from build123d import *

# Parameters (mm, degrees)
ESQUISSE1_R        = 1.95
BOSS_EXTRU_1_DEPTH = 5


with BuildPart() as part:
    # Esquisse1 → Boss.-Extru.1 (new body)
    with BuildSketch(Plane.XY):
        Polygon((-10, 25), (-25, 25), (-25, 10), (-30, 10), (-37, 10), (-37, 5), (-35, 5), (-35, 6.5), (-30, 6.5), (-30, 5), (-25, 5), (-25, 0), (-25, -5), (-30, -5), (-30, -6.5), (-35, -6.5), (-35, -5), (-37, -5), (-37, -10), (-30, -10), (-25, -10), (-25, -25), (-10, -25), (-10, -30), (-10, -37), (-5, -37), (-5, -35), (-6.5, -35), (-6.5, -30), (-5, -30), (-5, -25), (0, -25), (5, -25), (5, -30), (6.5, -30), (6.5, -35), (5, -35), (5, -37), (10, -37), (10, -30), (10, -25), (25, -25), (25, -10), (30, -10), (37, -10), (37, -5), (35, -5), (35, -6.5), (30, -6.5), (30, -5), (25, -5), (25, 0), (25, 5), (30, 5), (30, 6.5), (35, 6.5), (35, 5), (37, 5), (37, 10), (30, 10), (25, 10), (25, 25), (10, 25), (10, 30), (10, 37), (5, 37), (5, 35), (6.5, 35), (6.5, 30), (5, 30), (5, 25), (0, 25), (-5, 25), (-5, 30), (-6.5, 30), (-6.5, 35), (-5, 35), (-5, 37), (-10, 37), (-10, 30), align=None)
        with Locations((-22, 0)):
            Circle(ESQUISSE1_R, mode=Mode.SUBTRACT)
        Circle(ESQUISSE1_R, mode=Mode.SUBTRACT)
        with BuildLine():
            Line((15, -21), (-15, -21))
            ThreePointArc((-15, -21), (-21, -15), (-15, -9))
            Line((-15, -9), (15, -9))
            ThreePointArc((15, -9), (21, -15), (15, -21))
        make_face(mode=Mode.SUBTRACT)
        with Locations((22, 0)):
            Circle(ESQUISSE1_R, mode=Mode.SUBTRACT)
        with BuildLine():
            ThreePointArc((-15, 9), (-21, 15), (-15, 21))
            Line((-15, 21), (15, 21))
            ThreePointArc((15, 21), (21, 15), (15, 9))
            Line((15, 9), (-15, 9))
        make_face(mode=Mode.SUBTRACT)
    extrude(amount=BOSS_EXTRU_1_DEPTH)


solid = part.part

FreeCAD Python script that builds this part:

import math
import FreeCAD as App
import Part
import Sketcher
from FreeCAD import Vector

doc = App.newDocument("Part")
body = doc.addObject("PartDesign::Body", "Body")

# Sketch on XY plane
sketch1 = body.newObject("Sketcher::SketchObject", "Sketch")
sketch1.AttachmentSupport = (doc.getObject("XY_Plane"), [""])
sketch1.MapMode = "FlatFace"
sketch1.addGeometry([
    Part.LineSegment(Vector(-10, 25, 0), Vector(-25, 25, 0)),  # 0
    Part.LineSegment(Vector(-25, 25, 0), Vector(-25, 10, 0)),  # 1
    Part.LineSegment(Vector(-25, 10, 0), Vector(-37, 10, 0)),  # 2
    Part.LineSegment(Vector(-37, 10, 0), Vector(-37, 5, 0)),  # 3
    Part.LineSegment(Vector(-37, 5, 0), Vector(-35, 5, 0)),  # 4
    Part.LineSegment(Vector(-35, 5, 0), Vector(-35, 6.5, 0)),  # 5
    Part.LineSegment(Vector(-35, 6.5, 0), Vector(-30, 6.5, 0)),  # 6
    Part.LineSegment(Vector(-30, 6.5, 0), Vector(-30, 5, 0)),  # 7
    Part.LineSegment(Vector(-30, 5, 0), Vector(-25, 5, 0)),  # 8
    Part.LineSegment(Vector(-25, 5, 0), Vector(-25, -5, 0)),  # 9
    Part.LineSegment(Vector(-25, -5, 0), Vector(-30, -5, 0)),  # 10
    Part.LineSegment(Vector(-30, -5, 0), Vector(-30, -6.5, 0)),  # 11
    Part.LineSegment(Vector(-30, -6.5, 0), Vector(-35, -6.5, 0)),  # 12
    Part.LineSegment(Vector(-35, -6.5, 0), Vector(-35, -5, 0)),  # 13
    Part.LineSegment(Vector(-35, -5, 0), Vector(-37, -5, 0)),  # 14
    Part.LineSegment(Vector(-37, -5, 0), Vector(-37, -10, 0)),  # 15
    Part.LineSegment(Vector(-37, -10, 0), Vector(-25, -10, 0)),  # 16
    Part.LineSegment(Vector(-25, -10, 0), Vector(-25, -25, 0)),  # 17
    Part.LineSegment(Vector(-25, -25, 0), Vector(-10, -25, 0)),  # 18
    Part.LineSegment(Vector(-10, -25, 0), Vector(-10, -37, 0)),  # 19
    Part.LineSegment(Vector(-10, -37, 0), Vector(-5, -37, 0)),  # 20
    Part.LineSegment(Vector(-5, -37, 0), Vector(-5, -35, 0)),  # 21
    Part.LineSegment(Vector(-5, -35, 0), Vector(-6.5, -35, 0)),  # 22
    Part.LineSegment(Vector(-6.5, -35, 0), Vector(-6.5, -30, 0)),  # 23
    Part.LineSegment(Vector(-6.5, -30, 0), Vector(-5, -30, 0)),  # 24
    Part.LineSegment(Vector(-5, -30, 0), Vector(-5, -25, 0)),  # 25
    Part.LineSegment(Vector(-5, -25, 0), Vector(5, -25, 0)),  # 26
    Part.LineSegment(Vector(5, -25, 0), Vector(5, -30, 0)),  # 27
    Part.LineSegment(Vector(5, -30, 0), Vector(6.5, -30, 0)),  # 28
    Part.LineSegment(Vector(6.5, -30, 0), Vector(6.5, -35, 0)),  # 29
    Part.LineSegment(Vector(6.5, -35, 0), Vector(5, -35, 0)),  # 30
    Part.LineSegment(Vector(5, -35, 0), Vector(5, -37, 0)),  # 31
    Part.LineSegment(Vector(5, -37, 0), Vector(10, -37, 0)),  # 32
    Part.LineSegment(Vector(10, -37, 0), Vector(10, -25, 0)),  # 33
    Part.LineSegment(Vector(10, -25, 0), Vector(25, -25, 0)),  # 34
    Part.LineSegment(Vector(25, -25, 0), Vector(25, -10, 0)),  # 35
    Part.LineSegment(Vector(25, -10, 0), Vector(37, -10, 0)),  # 36
    Part.LineSegment(Vector(37, -10, 0), Vector(37, -5, 0)),  # 37
    Part.LineSegment(Vector(37, -5, 0), Vector(35, -5, 0)),  # 38
    Part.LineSegment(Vector(35, -5, 0), Vector(35, -6.5, 0)),  # 39
    Part.LineSegment(Vector(35, -6.5, 0), Vector(30, -6.5, 0)),  # 40
    Part.LineSegment(Vector(30, -6.5, 0), Vector(30, -5, 0)),  # 41
    Part.LineSegment(Vector(30, -5, 0), Vector(25, -5, 0)),  # 42
    Part.LineSegment(Vector(25, -5, 0), Vector(25, 5, 0)),  # 43
    Part.LineSegment(Vector(25, 5, 0), Vector(30, 5, 0)),  # 44
    Part.LineSegment(Vector(30, 5, 0), Vector(30, 6.5, 0)),  # 45
    Part.LineSegment(Vector(30, 6.5, 0), Vector(35, 6.5, 0)),  # 46
    Part.LineSegment(Vector(35, 6.5, 0), Vector(35, 5, 0)),  # 47
    Part.LineSegment(Vector(35, 5, 0), Vector(37, 5, 0)),  # 48
    Part.LineSegment(Vector(37, 5, 0), Vector(37, 10, 0)),  # 49
    Part.LineSegment(Vector(37, 10, 0), Vector(25, 10, 0)),  # 50
    Part.LineSegment(Vector(25, 10, 0), Vector(25, 25, 0)),  # 51
    Part.LineSegment(Vector(25, 25, 0), Vector(10, 25, 0)),  # 52
    Part.LineSegment(Vector(10, 25, 0), Vector(10, 37, 0)),  # 53
    Part.LineSegment(Vector(10, 37, 0), Vector(5, 37, 0)),  # 54
    Part.LineSegment(Vector(5, 37, 0), Vector(5, 35, 0)),  # 55
    Part.LineSegment(Vector(5, 35, 0), Vector(6.5, 35, 0)),  # 56
    Part.LineSegment(Vector(6.5, 35, 0), Vector(6.5, 30, 0)),  # 57
    Part.LineSegment(Vector(6.5, 30, 0), Vector(5, 30, 0)),  # 58
    Part.LineSegment(Vector(5, 30, 0), Vector(5, 25, 0)),  # 59
    Part.LineSegment(Vector(5, 25, 0), Vector(-5, 25, 0)),  # 60
    Part.LineSegment(Vector(-5, 25, 0), Vector(-5, 30, 0)),  # 61
    Part.LineSegment(Vector(-5, 30, 0), Vector(-6.5, 30, 0)),  # 62
    Part.LineSegment(Vector(-6.5, 30, 0), Vector(-6.5, 35, 0)),  # 63
    Part.LineSegment(Vector(-6.5, 35, 0), Vector(-5, 35, 0)),  # 64
    Part.LineSegment(Vector(-5, 35, 0), Vector(-5, 37, 0)),  # 65
    Part.LineSegment(Vector(-5, 37, 0), Vector(-10, 37, 0)),  # 66
    Part.LineSegment(Vector(-10, 37, 0), Vector(-10, 25, 0)),  # 67
    Part.ArcOfCircle(Part.Circle(Vector(15, -15, 0), Vector(0, 0, 1), 6), math.radians(-90), math.radians(90)),  # 68
    Part.LineSegment(Vector(15, -21, 0), Vector(-15, -21, 0)),  # 69
    Part.ArcOfCircle(Part.Circle(Vector(-15, -15, 0), Vector(0, 0, 1), 6), math.radians(90), math.radians(270)),  # 70
    Part.LineSegment(Vector(-15, -9, 0), Vector(15, -9, 0)),  # 71
    Part.Circle(Vector(-22, 0, 0), Vector(0, 0, 1), 1.9),  # 72
    Part.Circle(Vector(0, 0, 0), Vector(0, 0, 1), 1.9),  # 73
    Part.Circle(Vector(22, 0, 0), Vector(0, 0, 1), 1.9),  # 74
    Part.LineSegment(Vector(15, 9, 0), Vector(-15, 9, 0)),  # 75
    Part.ArcOfCircle(Part.Circle(Vector(-15, 15, 0), Vector(0, 0, 1), 6), math.radians(90), math.radians(270)),  # 76
    Part.LineSegment(Vector(-15, 21, 0), Vector(15, 21, 0)),  # 77
    Part.ArcOfCircle(Part.Circle(Vector(15, 15, 0), Vector(0, 0, 1), 6), math.radians(-90), math.radians(90)),  # 78
], False)
sketch1.addConstraint([
    Sketcher.Constraint("Coincident", 0, 2, 1, 1),
    Sketcher.Constraint("Coincident", 1, 2, 2, 1),
    Sketcher.Constraint("Coincident", 2, 2, 3, 1),
    Sketcher.Constraint("Coincident", 3, 2, 4, 1),
    Sketcher.Constraint("Coincident", 4, 2, 5, 1),
    Sketcher.Constraint("Coincident", 5, 2, 6, 1),
    Sketcher.Constraint("Coincident", 6, 2, 7, 1),
    Sketcher.Constraint("Coincident", 7, 2, 8, 1),
    Sketcher.Constraint("Coincident", 8, 2, 9, 1),
    Sketcher.Constraint("Coincident", 9, 2, 10, 1),
    Sketcher.Constraint("Coincident", 10, 2, 11, 1),
    Sketcher.Constraint("Coincident", 11, 2, 12, 1),
    Sketcher.Constraint("Coincident", 12, 2, 13, 1),
    Sketcher.Constraint("Coincident", 13, 2, 14, 1),
    Sketcher.Constraint("Coincident", 14, 2, 15, 1),
    Sketcher.Constraint("Coincident", 15, 2, 16, 1),
    Sketcher.Constraint("Coincident", 16, 2, 17, 1),
    Sketcher.Constraint("Coincident", 17, 2, 18, 1),
    Sketcher.Constraint("Coincident", 18, 2, 19, 1),
    Sketcher.Constraint("Coincident", 19, 2, 20, 1),
    Sketcher.Constraint("Coincident", 20, 2, 21, 1),
    Sketcher.Constraint("Coincident", 21, 2, 22, 1),
    Sketcher.Constraint("Coincident", 22, 2, 23, 1),
    Sketcher.Constraint("Coincident", 23, 2, 24, 1),
    Sketcher.Constraint("Coincident", 24, 2, 25, 1),
    Sketcher.Constraint("Coincident", 25, 2, 26, 1),
    Sketcher.Constraint("Coincident", 26, 2, 27, 1),
    Sketcher.Constraint("Coincident", 27, 2, 28, 1),
    Sketcher.Constraint("Coincident", 28, 2, 29, 1),
    Sketcher.Constraint("Coincident", 29, 2, 30, 1),
    Sketcher.Constraint("Coincident", 30, 2, 31, 1),
    Sketcher.Constraint("Coincident", 31, 2, 32, 1),
    Sketcher.Constraint("Coincident", 32, 2, 33, 1),
    Sketcher.Constraint("Coincident", 33, 2, 34, 1),
    Sketcher.Constraint("Coincident", 34, 2, 35, 1),
    Sketcher.Constraint("Coincident", 35, 2, 36, 1),
    Sketcher.Constraint("Coincident", 36, 2, 37, 1),
    Sketcher.Constraint("Coincident", 37, 2, 38, 1),
    Sketcher.Constraint("Coincident", 38, 2, 39, 1),
    Sketcher.Constraint("Coincident", 39, 2, 40, 1),
    Sketcher.Constraint("Coincident", 40, 2, 41, 1),
    Sketcher.Constraint("Coincident", 41, 2, 42, 1),
    Sketcher.Constraint("Coincident", 42, 2, 43, 1),
    Sketcher.Constraint("Coincident", 43, 2, 44, 1),
    Sketcher.Constraint("Coincident", 44, 2, 45, 1),
    Sketcher.Constraint("Coincident", 45, 2, 46, 1),
    Sketcher.Constraint("Coincident", 46, 2, 47, 1),
    Sketcher.Constraint("Coincident", 47, 2, 48, 1),
    Sketcher.Constraint("Coincident", 48, 2, 49, 1),
    Sketcher.Constraint("Coincident", 49, 2, 50, 1),
    Sketcher.Constraint("Coincident", 50, 2, 51, 1),
    Sketcher.Constraint("Coincident", 51, 2, 52, 1),
    Sketcher.Constraint("Coincident", 52, 2, 53, 1),
    Sketcher.Constraint("Coincident", 53, 2, 54, 1),
    Sketcher.Constraint("Coincident", 54, 2, 55, 1),
    Sketcher.Constraint("Coincident", 55, 2, 56, 1),
    Sketcher.Constraint("Coincident", 56, 2, 57, 1),
    Sketcher.Constraint("Coincident", 57, 2, 58, 1),
    Sketcher.Constraint("Coincident", 58, 2, 59, 1),
    Sketcher.Constraint("Coincident", 59, 2, 60, 1),
    Sketcher.Constraint("Coincident", 60, 2, 61, 1),
    Sketcher.Constraint("Coincident", 61, 2, 62, 1),
    Sketcher.Constraint("Coincident", 62, 2, 63, 1),
    Sketcher.Constraint("Coincident", 63, 2, 64, 1),
    Sketcher.Constraint("Coincident", 64, 2, 65, 1),
    Sketcher.Constraint("Coincident", 65, 2, 66, 1),
    Sketcher.Constraint("Coincident", 66, 2, 67, 1),
    Sketcher.Constraint("Coincident", 67, 2, 0, 1),
    Sketcher.Constraint("Tangent", 68, 1, 69, 1),
    Sketcher.Constraint("Tangent", 69, 2, 70, 2),
    Sketcher.Constraint("Tangent", 70, 1, 71, 1),
    Sketcher.Constraint("Tangent", 71, 2, 68, 2),
    Sketcher.Constraint("Tangent", 75, 2, 76, 2),
    Sketcher.Constraint("Tangent", 76, 1, 77, 1),
    Sketcher.Constraint("Tangent", 77, 2, 78, 2),
    Sketcher.Constraint("Tangent", 78, 1, 75, 1),
    Sketcher.Constraint("Horizontal", 0),
    Sketcher.Constraint("Vertical", 1),
    Sketcher.Constraint("Horizontal", 2),
    Sketcher.Constraint("Vertical", 3),
    Sketcher.Constraint("Horizontal", 4),
    Sketcher.Constraint("Vertical", 5),
    Sketcher.Constraint("Horizontal", 6),
    Sketcher.Constraint("Vertical", 7),
    Sketcher.Constraint("Horizontal", 8),
    Sketcher.Constraint("Vertical", 9),
    Sketcher.Constraint("Horizontal", 10),
    Sketcher.Constraint("Vertical", 11),
    Sketcher.Constraint("Horizontal", 12),
    Sketcher.Constraint("Vertical", 13),
    Sketcher.Constraint("Horizontal", 14),
    Sketcher.Constraint("Vertical", 15),
    Sketcher.Constraint("Horizontal", 16),
    Sketcher.Constraint("Vertical", 17),
    Sketcher.Constraint("Horizontal", 18),
    Sketcher.Constraint("Vertical", 19),
    Sketcher.Constraint("Horizontal", 20),
    Sketcher.Constraint("Vertical", 21),
    Sketcher.Constraint("Horizontal", 22),
    Sketcher.Constraint("Vertical", 23),
    Sketcher.Constraint("Horizontal", 24),
    Sketcher.Constraint("Vertical", 25),
    Sketcher.Constraint("Horizontal", 26),
    Sketcher.Constraint("Vertical", 27),
    Sketcher.Constraint("Horizontal", 28),
    Sketcher.Constraint("Vertical", 29),
    Sketcher.Constraint("Horizontal", 30),
    Sketcher.Constraint("Vertical", 31),
    Sketcher.Constraint("Horizontal", 32),
    Sketcher.Constraint("Vertical", 33),
    Sketcher.Constraint("Horizontal", 34),
    Sketcher.Constraint("Vertical", 35),
    Sketcher.Constraint("Horizontal", 36),
    Sketcher.Constraint("Vertical", 37),
    Sketcher.Constraint("Horizontal", 38),
    Sketcher.Constraint("Vertical", 39),
    Sketcher.Constraint("Horizontal", 40),
    Sketcher.Constraint("Vertical", 41),
    Sketcher.Constraint("Horizontal", 42),
    Sketcher.Constraint("Vertical", 43),
    Sketcher.Constraint("Horizontal", 44),
    Sketcher.Constraint("Vertical", 45),
    Sketcher.Constraint("Horizontal", 46),
    Sketcher.Constraint("Vertical", 47),
    Sketcher.Constraint("Horizontal", 48),
    Sketcher.Constraint("Vertical", 49),
    Sketcher.Constraint("Horizontal", 50),
    Sketcher.Constraint("Vertical", 51),
    Sketcher.Constraint("Horizontal", 52),
    Sketcher.Constraint("Vertical", 53),
    Sketcher.Constraint("Horizontal", 54),
    Sketcher.Constraint("Vertical", 55),
    Sketcher.Constraint("Horizontal", 56),
    Sketcher.Constraint("Vertical", 57),
    Sketcher.Constraint("Horizontal", 58),
    Sketcher.Constraint("Vertical", 59),
    Sketcher.Constraint("Horizontal", 60),
    Sketcher.Constraint("Vertical", 61),
    Sketcher.Constraint("Horizontal", 62),
    Sketcher.Constraint("Vertical", 63),
    Sketcher.Constraint("Horizontal", 64),
    Sketcher.Constraint("Vertical", 65),
    Sketcher.Constraint("Horizontal", 66),
    Sketcher.Constraint("Vertical", 67),
    Sketcher.Constraint("Horizontal", 69),
    Sketcher.Constraint("Horizontal", 71),
    Sketcher.Constraint("Horizontal", 75),
    Sketcher.Constraint("Horizontal", 77),
    Sketcher.Constraint("Coincident", 73, 3, -1, 1),
    Sketcher.Constraint("Equal", 72, 73),
    Sketcher.Constraint("Equal", 73, 74),
    Sketcher.Constraint("Equal", 70, 76),
    Sketcher.Constraint("Symmetric", 72, 3, 74, 3, -1, 1),
    Sketcher.Constraint("Symmetric", 68, 3, 76, 3, -1, 1),
    Sketcher.Constraint("Symmetric", 0, 2, 34, 2, -1, 1),
    Sketcher.Constraint("Symmetric", 2, 2, 36, 2, -1, 1),
    Sketcher.Constraint("Symmetric", 4, 2, 38, 2, -1, 1),
    Sketcher.Constraint("Symmetric", 6, 2, 40, 2, -1, 1),
    Sketcher.Constraint("Symmetric", 8, 2, 42, 2, -1, 1),
    Sketcher.Constraint("Symmetric", 10, 2, 44, 2, -1, 1),
    Sketcher.Constraint("Symmetric", 12, 2, 46, 2, -1, 1),
    Sketcher.Constraint("Symmetric", 14, 2, 48, 2, -1, 1),
    Sketcher.Constraint("Symmetric", 16, 2, 50, 2, -1, 1),
    Sketcher.Constraint("Symmetric", 18, 2, 52, 2, -1, 1),
    Sketcher.Constraint("Symmetric", 20, 2, 54, 2, -1, 1),
    Sketcher.Constraint("Symmetric", 22, 2, 56, 2, -1, 1),
    Sketcher.Constraint("Symmetric", 24, 2, 58, 2, -1, 1),
    Sketcher.Constraint("Symmetric", 26, 2, 60, 2, -1, 1),
    Sketcher.Constraint("Symmetric", 28, 2, 62, 2, -1, 1),
    Sketcher.Constraint("Symmetric", 30, 2, 64, 2, -1, 1),
    Sketcher.Constraint("Symmetric", 32, 2, 66, 2, -1, 1),
    Sketcher.Constraint("Symmetric", 24, 2, 27, 2, -2),
    Sketcher.Constraint("Symmetric", 22, 2, 29, 2, -2),
    Sketcher.Constraint("Symmetric", 20, 2, 31, 2, -2),
    Sketcher.Constraint("Symmetric", 18, 2, 33, 2, -2),
    Sketcher.Constraint("Symmetric", 16, 2, 35, 2, -2),
    Sketcher.Constraint("Symmetric", 14, 2, 37, 2, -2),
    Sketcher.Constraint("Symmetric", 12, 2, 39, 2, -2),
    Sketcher.Constraint("Symmetric", 10, 2, 41, 2, -2),
    Sketcher.Constraint("PointOnObject", 72, 3, -1),
    Sketcher.Constraint("Horizontal", 4, 2, 7, 2),
    Sketcher.Constraint("Horizontal", 18, 2, 25, 2),
    Sketcher.Constraint("Vertical", 70, 3, 76, 3),
    Sketcher.Constraint("Vertical", 68, 3, 78, 3),
    Sketcher.Constraint("Vertical", 1, 2, 8, 2),
    Sketcher.Constraint("Vertical", 21, 2, 24, 2),
    Sketcher.Constraint("Equal", 6, 8),
    Sketcher.Constraint("Equal", 12, 20),
    Sketcher.Constraint("Equal", 52, 1),
    Sketcher.Constraint("Equal", 66, 3),
    Sketcher.Constraint("Equal", 64, 5),
    Sketcher.Constraint("Equal", 60, 9),
    Sketcher.Constraint("Equal", 50, 19),
    Sketcher.Constraint("Equal", 48, 21),
    Sketcher.Constraint("Equal", 15, 23),
    Sketcher.Constraint("Radius", 68, 6.0),
    Sketcher.Constraint("Diameter", 72, 3.9),
    Sketcher.Constraint("DistanceX", 0, 2, 0, 1, 15.0),
    Sketcher.Constraint("DistanceX", 2, 2, 2, 1, 12.0),
    Sketcher.Constraint("DistanceX", 4, 1, 4, 2, 2.0),
    Sketcher.Constraint("DistanceX", 26, 1, 26, 2, 10.0),
    Sketcher.Constraint("DistanceX", 69, 2, 69, 1, 30.0),
    Sketcher.Constraint("DistanceX", 22, 2, 22, 1, 1.5),
    Sketcher.Constraint("DistanceY", 68, 3, -1, 1, 15.0),
    Sketcher.Constraint("DistanceX", 72, 3, -1, 1, 22.0),
])
pad1 = body.newObject("PartDesign::Pad", "Pad")
pad1.Profile = sketch1
pad1.Length = 5

doc.recompute()
